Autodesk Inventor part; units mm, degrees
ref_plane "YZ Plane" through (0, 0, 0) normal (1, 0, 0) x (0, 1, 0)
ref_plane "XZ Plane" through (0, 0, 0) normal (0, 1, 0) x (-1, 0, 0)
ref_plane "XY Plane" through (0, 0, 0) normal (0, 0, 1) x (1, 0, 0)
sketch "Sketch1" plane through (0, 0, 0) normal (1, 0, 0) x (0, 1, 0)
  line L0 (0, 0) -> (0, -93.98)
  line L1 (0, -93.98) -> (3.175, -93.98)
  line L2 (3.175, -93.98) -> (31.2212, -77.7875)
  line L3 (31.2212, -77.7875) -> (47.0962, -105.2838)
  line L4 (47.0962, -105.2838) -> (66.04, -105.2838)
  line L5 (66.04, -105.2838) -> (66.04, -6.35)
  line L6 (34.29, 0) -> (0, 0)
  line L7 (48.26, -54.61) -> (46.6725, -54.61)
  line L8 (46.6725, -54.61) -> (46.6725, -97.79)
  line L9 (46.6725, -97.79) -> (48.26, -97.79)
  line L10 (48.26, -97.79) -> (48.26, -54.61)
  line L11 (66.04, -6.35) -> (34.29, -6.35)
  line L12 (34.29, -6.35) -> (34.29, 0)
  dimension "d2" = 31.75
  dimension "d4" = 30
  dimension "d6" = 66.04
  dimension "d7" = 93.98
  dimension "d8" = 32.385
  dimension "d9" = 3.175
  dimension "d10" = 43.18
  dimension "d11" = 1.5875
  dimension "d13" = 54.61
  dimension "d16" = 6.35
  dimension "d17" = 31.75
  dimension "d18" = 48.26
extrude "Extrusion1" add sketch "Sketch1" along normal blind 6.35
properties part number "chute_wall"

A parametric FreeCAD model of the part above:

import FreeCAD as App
import Part
import Sketcher

V = App.Vector
Q = App.Units.Quantity

doc = App.newDocument("Part")
body = doc.addObject("PartDesign::Body", "Body")

# Sketch on YZ plane
sketch1 = body.newObject("Sketcher::SketchObject", "Sketch")
sketch1.AttachmentSupport = (doc.getObject("YZ_Plane"), [""])
sketch1.MapMode = "FlatFace"
sketch1.addGeometry([
    Part.LineSegment(V(34.3, 0, 0), V(0, 0, 0)),  # 0
    Part.LineSegment(V(0, 0, 0), V(0, -94, 0)),  # 1
    Part.LineSegment(V(0, -94, 0), V(3.2, -94, 0)),  # 2
    Part.LineSegment(V(3.2, -94, 0), V(31.2, -77.8, 0)),  # 3
    Part.LineSegment(V(31.2, -77.8, 0), V(47.1, -105.3, 0)),  # 4
    Part.LineSegment(V(47.1, -105.3, 0), V(66, -105.3, 0)),  # 5
    Part.LineSegment(V(66, -105.3, 0), V(66, -6.3, 0)),  # 6
    Part.LineSegment(V(66, -6.3, 0), V(34.3, -6.3, 0)),  # 7
    Part.LineSegment(V(34.3, -6.3, 0), V(34.3, 0, 0)),  # 8
    Part.LineSegment(V(46.7, -54.6, 0), V(48.3, -54.6, 0)),  # 9
    Part.LineSegment(V(48.3, -54.6, 0), V(48.3, -97.8, 0)),  # 10
    Part.LineSegment(V(48.3, -97.8, 0), V(46.7, -97.8, 0)),  # 11
    Part.LineSegment(V(46.7, -97.8, 0), V(46.7, -54.6, 0)),  # 12
], False)
sketch1.addConstraint([
    Sketcher.Constraint("Coincident", 0, 2, 1, 1),
    Sketcher.Constraint("Coincident", 1, 2, 2, 1),
    Sketcher.Constraint("Coincident", 2, 2, 3, 1),
    Sketcher.Constraint("Coincident", 3, 2, 4, 1),
    Sketcher.Constraint("Coincident", 4, 2, 5, 1),
    Sketcher.Constraint("Coincident", 5, 2, 6, 1),
    Sketcher.Constraint("Coincident", 6, 2, 7, 1),
    Sketcher.Constraint("Coincident", 7, 2, 8, 1),
    Sketcher.Constraint("Coincident", 8, 2, 0, 1),
    Sketcher.Constraint("Coincident", 9, 2, 10, 1),
    Sketcher.Constraint("Coincident", 10, 2, 11, 1),
    Sketcher.Constraint("Coincident", 11, 2, 12, 1),
    Sketcher.Constraint("Coincident", 12, 2, 9, 1),
    Sketcher.Constraint("Horizontal", 0),
    Sketcher.Constraint("Vertical", 1),
    Sketcher.Constraint("Horizontal", 2),
    Sketcher.Constraint("Horizontal", 5),
    Sketcher.Constraint("Vertical", 6),
    Sketcher.Constraint("Horizontal", 7),
    Sketcher.Constraint("Vertical", 8),
    Sketcher.Constraint("Horizontal", 9),
    Sketcher.Constraint("Vertical", 10),
    Sketcher.Constraint("Horizontal", 11),
    Sketcher.Constraint("Vertical", 12),
    Sketcher.Constraint("Coincident", 0, 2, -1, 1),
    Sketcher.Constraint("Perpendicular", 3, 4),
    Sketcher.Constraint("DistanceY", 1, 2, 1, 1, Q("3.7 in")),
    Sketcher.Constraint("DistanceY", 10, 2, 10, 1, Q("1.7 in")),
    Sketcher.Constraint("Angle", 3, Q("30 deg")),
    Sketcher.Constraint("DistanceX", 7, 2, 7, 1, Q("1.25 in")),
    Sketcher.Constraint("DistanceY", 8, 1, 8, 2, Q("0.25 in")),
    Sketcher.Constraint("DistanceX", -1, 1, 5, 2, Q("2.6 in")),
    Sketcher.Constraint("DistanceX", -1, 1, 9, 2, Q("1.9 in")),
    Sketcher.Constraint("DistanceY", 9, 2, 7, 2, Q("1.9 in")),
    Sketcher.Constraint("Distance", 4, Q("1.25 in")),
    Sketcher.Constraint("DistanceX", 2, 1, 2, 2, Q("0.125 in")),
    Sketcher.Constraint("DistanceX", 9, 1, 9, 2, Q("0.0625 in")),
    Sketcher.Constraint("Distance", 3, Q("1.275 in")),
])
pad1 = body.newObject("PartDesign::Pad", "Pad")
pad1.Profile = sketch1
pad1.Length = Q("0.25 in")

doc.recompute()
